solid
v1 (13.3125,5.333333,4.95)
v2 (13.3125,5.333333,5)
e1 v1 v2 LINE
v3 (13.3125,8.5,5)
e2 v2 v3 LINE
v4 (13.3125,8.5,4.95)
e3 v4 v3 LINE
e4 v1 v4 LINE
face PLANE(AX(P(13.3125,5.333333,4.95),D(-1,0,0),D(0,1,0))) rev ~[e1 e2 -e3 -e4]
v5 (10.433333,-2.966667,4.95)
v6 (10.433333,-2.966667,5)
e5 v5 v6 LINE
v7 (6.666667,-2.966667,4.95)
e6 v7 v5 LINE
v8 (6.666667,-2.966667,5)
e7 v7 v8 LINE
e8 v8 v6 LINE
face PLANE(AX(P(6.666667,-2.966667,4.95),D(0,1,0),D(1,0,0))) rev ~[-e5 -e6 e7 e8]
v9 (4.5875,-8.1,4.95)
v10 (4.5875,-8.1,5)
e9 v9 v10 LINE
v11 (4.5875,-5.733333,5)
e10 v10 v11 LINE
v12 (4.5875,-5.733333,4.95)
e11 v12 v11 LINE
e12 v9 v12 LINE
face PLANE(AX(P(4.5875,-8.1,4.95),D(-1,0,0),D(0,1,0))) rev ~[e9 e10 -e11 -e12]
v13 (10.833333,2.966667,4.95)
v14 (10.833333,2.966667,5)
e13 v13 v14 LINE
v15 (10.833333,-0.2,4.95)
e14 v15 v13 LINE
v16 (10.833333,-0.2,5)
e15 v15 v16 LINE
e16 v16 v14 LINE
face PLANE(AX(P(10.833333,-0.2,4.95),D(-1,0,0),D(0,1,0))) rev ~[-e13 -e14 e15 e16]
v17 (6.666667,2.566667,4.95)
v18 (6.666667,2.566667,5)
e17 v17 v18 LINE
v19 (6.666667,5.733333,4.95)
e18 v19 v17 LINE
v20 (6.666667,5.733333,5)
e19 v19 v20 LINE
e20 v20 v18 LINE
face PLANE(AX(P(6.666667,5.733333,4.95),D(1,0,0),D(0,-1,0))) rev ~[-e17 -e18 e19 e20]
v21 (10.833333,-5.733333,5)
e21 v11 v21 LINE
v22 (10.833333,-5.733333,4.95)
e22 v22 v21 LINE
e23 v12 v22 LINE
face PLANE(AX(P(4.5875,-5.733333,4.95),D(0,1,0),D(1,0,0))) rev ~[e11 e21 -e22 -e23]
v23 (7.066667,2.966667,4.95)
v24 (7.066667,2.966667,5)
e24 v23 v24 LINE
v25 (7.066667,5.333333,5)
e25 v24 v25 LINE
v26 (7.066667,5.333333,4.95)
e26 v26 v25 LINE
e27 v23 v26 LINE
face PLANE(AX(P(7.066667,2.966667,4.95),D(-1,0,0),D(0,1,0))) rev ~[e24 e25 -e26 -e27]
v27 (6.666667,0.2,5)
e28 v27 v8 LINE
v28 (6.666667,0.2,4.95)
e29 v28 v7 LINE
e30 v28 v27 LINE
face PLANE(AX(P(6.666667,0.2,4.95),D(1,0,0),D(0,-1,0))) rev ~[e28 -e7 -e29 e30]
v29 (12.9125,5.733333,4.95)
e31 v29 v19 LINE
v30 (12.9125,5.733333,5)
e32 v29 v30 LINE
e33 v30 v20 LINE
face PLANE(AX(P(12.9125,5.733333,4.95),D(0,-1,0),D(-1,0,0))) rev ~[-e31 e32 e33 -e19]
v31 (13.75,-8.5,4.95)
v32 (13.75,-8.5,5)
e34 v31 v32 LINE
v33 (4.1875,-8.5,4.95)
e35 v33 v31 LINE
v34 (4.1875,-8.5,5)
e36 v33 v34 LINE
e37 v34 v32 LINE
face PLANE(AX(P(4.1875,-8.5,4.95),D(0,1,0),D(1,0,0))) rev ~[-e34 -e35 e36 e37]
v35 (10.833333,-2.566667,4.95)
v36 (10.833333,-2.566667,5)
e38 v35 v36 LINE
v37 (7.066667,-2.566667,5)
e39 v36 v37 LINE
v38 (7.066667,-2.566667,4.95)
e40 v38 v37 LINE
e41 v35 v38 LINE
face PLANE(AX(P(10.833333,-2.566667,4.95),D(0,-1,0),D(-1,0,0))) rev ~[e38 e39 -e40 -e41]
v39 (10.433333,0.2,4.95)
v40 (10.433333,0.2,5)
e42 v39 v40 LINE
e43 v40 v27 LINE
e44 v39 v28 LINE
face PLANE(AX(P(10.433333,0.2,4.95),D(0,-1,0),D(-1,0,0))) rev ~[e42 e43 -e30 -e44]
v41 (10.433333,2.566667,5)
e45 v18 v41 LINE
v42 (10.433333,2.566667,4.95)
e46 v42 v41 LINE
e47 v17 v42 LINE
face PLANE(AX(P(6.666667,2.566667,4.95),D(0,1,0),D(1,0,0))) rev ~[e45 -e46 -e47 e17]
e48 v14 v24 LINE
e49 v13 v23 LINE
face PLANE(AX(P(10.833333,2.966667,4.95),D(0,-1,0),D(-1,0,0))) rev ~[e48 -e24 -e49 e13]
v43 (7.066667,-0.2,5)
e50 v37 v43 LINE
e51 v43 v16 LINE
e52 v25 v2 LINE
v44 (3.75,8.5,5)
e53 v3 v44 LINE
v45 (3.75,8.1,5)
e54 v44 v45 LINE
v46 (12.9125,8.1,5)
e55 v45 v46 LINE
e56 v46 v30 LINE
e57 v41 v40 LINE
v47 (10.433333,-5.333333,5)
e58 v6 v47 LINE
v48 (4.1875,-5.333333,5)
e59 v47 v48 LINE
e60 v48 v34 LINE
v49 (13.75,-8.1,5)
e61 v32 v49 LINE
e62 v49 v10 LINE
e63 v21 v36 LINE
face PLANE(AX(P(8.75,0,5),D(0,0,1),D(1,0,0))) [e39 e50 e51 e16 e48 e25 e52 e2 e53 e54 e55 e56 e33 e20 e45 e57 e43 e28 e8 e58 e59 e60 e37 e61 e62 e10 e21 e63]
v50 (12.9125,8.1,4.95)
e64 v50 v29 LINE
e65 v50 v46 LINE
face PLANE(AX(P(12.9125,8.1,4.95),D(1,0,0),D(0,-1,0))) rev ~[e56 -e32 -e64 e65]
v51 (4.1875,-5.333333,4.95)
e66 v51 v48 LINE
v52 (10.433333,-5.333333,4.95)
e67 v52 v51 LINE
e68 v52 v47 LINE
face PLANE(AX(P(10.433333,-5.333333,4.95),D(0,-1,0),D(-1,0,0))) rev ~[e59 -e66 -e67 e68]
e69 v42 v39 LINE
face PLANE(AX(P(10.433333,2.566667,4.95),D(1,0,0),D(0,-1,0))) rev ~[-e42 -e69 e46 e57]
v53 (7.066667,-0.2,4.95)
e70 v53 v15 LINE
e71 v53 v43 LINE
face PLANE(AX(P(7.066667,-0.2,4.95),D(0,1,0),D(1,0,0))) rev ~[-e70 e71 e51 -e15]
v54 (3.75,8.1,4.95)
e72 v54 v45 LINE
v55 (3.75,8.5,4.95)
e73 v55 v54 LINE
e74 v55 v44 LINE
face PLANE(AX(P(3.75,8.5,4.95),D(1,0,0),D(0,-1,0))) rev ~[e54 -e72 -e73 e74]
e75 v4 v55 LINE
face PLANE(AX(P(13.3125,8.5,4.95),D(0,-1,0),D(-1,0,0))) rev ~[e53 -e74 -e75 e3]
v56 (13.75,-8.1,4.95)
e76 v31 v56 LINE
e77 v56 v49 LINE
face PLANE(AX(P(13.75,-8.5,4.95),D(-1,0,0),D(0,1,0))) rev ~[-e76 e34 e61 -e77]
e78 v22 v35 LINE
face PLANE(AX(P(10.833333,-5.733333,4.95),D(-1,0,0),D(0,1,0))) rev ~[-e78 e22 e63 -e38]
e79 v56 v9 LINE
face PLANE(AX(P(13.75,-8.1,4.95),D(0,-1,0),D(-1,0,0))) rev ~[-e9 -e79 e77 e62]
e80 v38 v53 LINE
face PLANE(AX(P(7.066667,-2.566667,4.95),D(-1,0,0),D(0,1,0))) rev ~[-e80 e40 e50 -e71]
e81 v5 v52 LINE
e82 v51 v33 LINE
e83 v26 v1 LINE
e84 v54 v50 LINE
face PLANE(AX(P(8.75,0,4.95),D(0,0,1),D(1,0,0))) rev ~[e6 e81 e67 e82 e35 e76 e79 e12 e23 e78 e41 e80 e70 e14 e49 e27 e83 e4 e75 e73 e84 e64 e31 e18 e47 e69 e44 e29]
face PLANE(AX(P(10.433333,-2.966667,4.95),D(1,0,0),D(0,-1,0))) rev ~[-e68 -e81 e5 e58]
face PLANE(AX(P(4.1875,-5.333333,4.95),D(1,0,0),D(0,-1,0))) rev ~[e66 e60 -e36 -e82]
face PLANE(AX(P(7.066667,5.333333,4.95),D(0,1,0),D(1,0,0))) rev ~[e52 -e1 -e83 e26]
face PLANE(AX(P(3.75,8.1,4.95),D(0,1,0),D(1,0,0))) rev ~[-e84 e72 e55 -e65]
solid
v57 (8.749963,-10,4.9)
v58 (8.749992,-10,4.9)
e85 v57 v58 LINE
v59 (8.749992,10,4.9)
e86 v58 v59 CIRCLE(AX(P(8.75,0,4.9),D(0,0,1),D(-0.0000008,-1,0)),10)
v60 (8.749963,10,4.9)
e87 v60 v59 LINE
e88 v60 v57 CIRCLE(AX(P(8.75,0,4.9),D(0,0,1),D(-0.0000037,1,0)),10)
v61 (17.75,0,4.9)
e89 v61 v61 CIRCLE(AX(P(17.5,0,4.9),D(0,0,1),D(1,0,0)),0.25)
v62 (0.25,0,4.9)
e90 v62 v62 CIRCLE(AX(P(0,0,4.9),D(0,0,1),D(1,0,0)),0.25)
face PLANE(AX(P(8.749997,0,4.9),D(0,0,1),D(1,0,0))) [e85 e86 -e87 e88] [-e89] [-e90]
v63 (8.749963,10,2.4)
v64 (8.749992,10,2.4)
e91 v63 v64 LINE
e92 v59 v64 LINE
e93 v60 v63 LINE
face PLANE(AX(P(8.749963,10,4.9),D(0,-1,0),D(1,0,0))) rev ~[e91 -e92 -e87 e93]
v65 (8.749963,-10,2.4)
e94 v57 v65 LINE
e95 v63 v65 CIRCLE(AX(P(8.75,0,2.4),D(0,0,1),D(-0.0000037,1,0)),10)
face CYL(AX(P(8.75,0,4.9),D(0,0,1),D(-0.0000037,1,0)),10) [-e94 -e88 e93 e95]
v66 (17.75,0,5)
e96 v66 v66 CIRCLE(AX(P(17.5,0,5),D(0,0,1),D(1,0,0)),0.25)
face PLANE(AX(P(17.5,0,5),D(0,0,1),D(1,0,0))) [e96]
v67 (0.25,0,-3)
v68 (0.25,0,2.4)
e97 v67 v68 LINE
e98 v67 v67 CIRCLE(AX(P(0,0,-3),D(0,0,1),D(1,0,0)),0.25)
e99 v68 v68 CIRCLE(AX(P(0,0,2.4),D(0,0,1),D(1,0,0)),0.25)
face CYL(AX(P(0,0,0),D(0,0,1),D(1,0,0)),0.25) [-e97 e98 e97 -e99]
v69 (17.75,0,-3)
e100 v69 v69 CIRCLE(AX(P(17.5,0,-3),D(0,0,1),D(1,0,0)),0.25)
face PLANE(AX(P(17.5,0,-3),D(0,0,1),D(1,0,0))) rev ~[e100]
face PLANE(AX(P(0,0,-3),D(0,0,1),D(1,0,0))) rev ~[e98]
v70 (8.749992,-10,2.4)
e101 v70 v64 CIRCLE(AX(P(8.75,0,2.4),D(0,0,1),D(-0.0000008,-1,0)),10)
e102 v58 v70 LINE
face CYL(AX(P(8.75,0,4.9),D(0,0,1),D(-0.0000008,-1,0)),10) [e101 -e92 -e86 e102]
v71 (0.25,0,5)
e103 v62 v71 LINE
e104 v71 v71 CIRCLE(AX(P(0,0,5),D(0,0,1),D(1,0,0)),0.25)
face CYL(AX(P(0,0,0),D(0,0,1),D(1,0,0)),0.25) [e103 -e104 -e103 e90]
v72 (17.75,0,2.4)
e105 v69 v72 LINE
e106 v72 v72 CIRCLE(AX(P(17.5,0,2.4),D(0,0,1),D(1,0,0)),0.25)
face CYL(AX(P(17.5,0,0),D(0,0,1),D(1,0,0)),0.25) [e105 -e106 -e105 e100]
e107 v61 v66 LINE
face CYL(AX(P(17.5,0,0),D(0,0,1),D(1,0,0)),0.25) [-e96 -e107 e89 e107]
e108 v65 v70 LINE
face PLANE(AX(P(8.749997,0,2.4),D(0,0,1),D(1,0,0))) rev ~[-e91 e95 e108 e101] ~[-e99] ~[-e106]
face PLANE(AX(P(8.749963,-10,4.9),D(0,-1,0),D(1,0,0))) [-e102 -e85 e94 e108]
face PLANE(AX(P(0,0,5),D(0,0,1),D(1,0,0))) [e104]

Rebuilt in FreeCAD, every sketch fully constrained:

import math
import FreeCAD as App
import Part
import Sketcher

V = App.Vector
Q = App.Units.Quantity

doc = App.newDocument("Part")
body = doc.addObject("PartDesign::Body", "Body")

sketch1 = doc.addObject("Sketcher::SketchObject", "Sketch")
body.addObject(sketch1)
sketch1.AttachmentSupport = (doc.XY_Plane, [""])
sketch1.MapMode = "FlatFace"
sketch1.AttachmentOffset = App.Placement(V(0, 0, 4.9), App.Rotation())
sketch1.addGeometry([
    Part.ArcOfCircle(Part.Circle(V(8.75, 0, 0), V(0, 0, 1), 10), math.radians(90.000212), math.radians(269.999788)),
    Part.LineSegment(V(8.749963, -10, 0), V(8.749992, -10, 0)),
    Part.ArcOfCircle(Part.Circle(V(8.75, 0, 0), V(0, 0, 1), 10), math.radians(-90.000046), math.radians(90.000046)),
    Part.LineSegment(V(8.749992, 10, 0), V(8.749963, 10, 0)),
], False)
sketch1.addConstraint([
    Sketcher.Constraint("Coincident", 0, 2, 1, 1),
    Sketcher.Constraint("Tangent", 1, 2, 2, 1),
    Sketcher.Constraint("Tangent", 2, 2, 3, 1),
    Sketcher.Constraint("Coincident", 3, 2, 0, 1),
    Sketcher.Constraint("Symmetric", 1, 2, 2, 2, -1),
    Sketcher.Constraint("Vertical", 0, 2, 3, 2),
    Sketcher.Constraint("Radius", 0, Q("10 mm")),
    Sketcher.Constraint("DistanceX", -1, 1, 0, 3, Q("8.75 mm")),
    Sketcher.Constraint("DistanceX", -1, 1, 2, 3, Q("8.75 mm")),
    Sketcher.Constraint("DistanceX", -1, 1, 0, 2, Q("8.749963 mm")),
    Sketcher.Constraint("DistanceX", -1, 1, 1, 2, Q("8.749992 mm")),
])
pad1 = doc.addObject("PartDesign::Pad", "Pad")
body.addObject(pad1)
pad1.Profile = sketch1
pad1.Length = 2.5
pad1.Reversed = True
body2 = doc.addObject("PartDesign::Body", "Body001")
body2.AllowCompound = True

sketch2 = doc.addObject("Sketcher::SketchObject", "Sketch001")
body2.addObject(sketch2)
sketch2.AttachmentSupport = (doc.getObject("XY_Plane001"), [""])
sketch2.MapMode = "FlatFace"
sketch2.addGeometry([
    Part.Circle(V(0, 0, 0), V(0, 0, 1), 0.25),
    Part.Circle(V(17.5, 0, 0), V(0, 0, 1), 0.25),
], False)
sketch2.addConstraint([
    Sketcher.Constraint("Coincident", 0, 3, -1, 1),
    Sketcher.Constraint("Equal", 0, 1),
    Sketcher.Constraint("PointOnObject", 1, 3, -1),
    Sketcher.Constraint("Diameter", 0, Q("0.5 mm")),
    Sketcher.Constraint("DistanceX", -1, 1, 1, 3, Q("17.5 mm")),
])
pad2 = doc.addObject("PartDesign::Pad", "Pad001")
body2.addObject(pad2)
pad2.Profile = sketch2
pad2.Type = "TwoLengths"
pad2.Length = 5
pad2.Length2 = 3
body3 = doc.addObject("PartDesign::Body", "Body002")
body3.AllowCompound = True

sketch3 = doc.addObject("Sketcher::SketchObject", "Sketch002")
body3.addObject(sketch3)
sketch3.AttachmentSupport = (doc.getObject("XY_Plane002"), [""])
sketch3.MapMode = "FlatFace"
sketch3.AttachmentOffset = App.Placement(V(0, 0, 4.95), App.Rotation())
sketch3.addGeometry([
    Part.LineSegment(V(3.75, 8.1, 0), V(12.91, 8.1, 0)),
    Part.LineSegment(V(12.91, 8.1, 0), V(12.91, 5.73, 0)),
    Part.LineSegment(V(12.91, 5.73, 0), V(6.67, 5.73, 0)),
    Part.LineSegment(V(6.67, 5.73, 0), V(6.67, 2.57, 0)),
    Part.LineSegment(V(6.67, 2.57, 0), V(10.43, 2.57, 0)),
    Part.LineSegment(V(10.43, 2.57, 0), V(10.43, 0.2, 0)),
    Part.LineSegment(V(10.43, 0.2, 0), V(6.67, 0.2, 0)),
    Part.LineSegment(V(6.67, 0.2, 0), V(6.67, -2.97, 0)),
    Part.LineSegment(V(6.67, -2.97, 0), V(10.43, -2.97, 0)),
    Part.LineSegment(V(10.43, -2.97, 0), V(10.43, -5.33, 0)),
    Part.LineSegment(V(10.43, -5.33, 0), V(4.19, -5.33, 0)),
    Part.LineSegment(V(4.19, -5.33, 0), V(4.19, -8.5, 0)),
    Part.LineSegment(V(4.19, -8.5, 0), V(13.75, -8.5, 0)),
    Part.LineSegment(V(13.75, -8.5, 0), V(13.75, -8.1, 0)),
    Part.LineSegment(V(13.75, -8.1, 0), V(4.59, -8.1, 0)),
    Part.LineSegment(V(4.59, -8.1, 0), V(4.59, -5.73, 0)),
    Part.LineSegment(V(4.59, -5.73, 0), V(10.83, -5.73, 0)),
    Part.LineSegment(V(10.83, -5.73, 0), V(10.83, -2.57, 0)),
    Part.LineSegment(V(10.83, -2.57, 0), V(7.07, -2.57, 0)),
    Part.LineSegment(V(7.07, -2.57, 0), V(7.07, -0.2, 0)),
    Part.LineSegment(V(7.07, -0.2, 0), V(10.83, -0.2, 0)),
    Part.LineSegment(V(10.83, -0.2, 0), V(10.83, 2.97, 0)),
    Part.LineSegment(V(10.83, 2.97, 0), V(7.07, 2.97, 0)),
    Part.LineSegment(V(7.07, 2.97, 0), V(7.07, 5.33, 0)),
    Part.LineSegment(V(7.07, 5.33, 0), V(13.31, 5.33, 0)),
    Part.LineSegment(V(13.31, 5.33, 0), V(13.31, 8.5, 0)),
    Part.LineSegment(V(13.31, 8.5, 0), V(3.75, 8.5, 0)),
    Part.LineSegment(V(3.75, 8.5, 0), V(3.75, 8.1, 0)),
], False)
sketch3.addConstraint([
    Sketcher.Constraint("Coincident", 0, 2, 1, 1),
    Sketcher.Constraint("Coincident", 1, 2, 2, 1),
    Sketcher.Constraint("Coincident", 2, 2, 3, 1),
    Sketcher.Constraint("Coincident", 3, 2, 4, 1),
    Sketcher.Constraint("Coincident", 4, 2, 5, 1),
    Sketcher.Constraint("Coincident", 5, 2, 6, 1),
    Sketcher.Constraint("Coincident", 6, 2, 7, 1),
    Sketcher.Constraint("Coincident", 7, 2, 8, 1),
    Sketcher.Constraint("Coincident", 8, 2, 9, 1),
    Sketcher.Constraint("Coincident", 9, 2, 10, 1),
    Sketcher.Constraint("Coincident", 10, 2, 11, 1),
    Sketcher.Constraint("Coincident", 11, 2, 12, 1),
    Sketcher.Constraint("Coincident", 12, 2, 13, 1),
    Sketcher.Constraint("Coincident", 13, 2, 14, 1),
    Sketcher.Constraint("Coincident", 14, 2, 15, 1),
    Sketcher.Constraint("Coincident", 15, 2, 16, 1),
    Sketcher.Constraint("Coincident", 16, 2, 17, 1),
    Sketcher.Constraint("Coincident", 17, 2, 18, 1),
    Sketcher.Constraint("Coincident", 18, 2, 19, 1),
    Sketcher.Constraint("Coincident", 19, 2, 20, 1),
    Sketcher.Constraint("Coincident", 20, 2, 21, 1),
    Sketcher.Constraint("Coincident", 21, 2, 22, 1),
    Sketcher.Constraint("Coincident", 22, 2, 23, 1),
    Sketcher.Constraint("Coincident", 23, 2, 24, 1),
    Sketcher.Constraint("Coincident", 24, 2, 25, 1),
    Sketcher.Constraint("Coincident", 25, 2, 26, 1),
    Sketcher.Constraint("Coincident", 26, 2, 27, 1),
    Sketcher.Constraint("Coincident", 27, 2, 0, 1),
    Sketcher.Constraint("Horizontal", 0),
    Sketcher.Constraint("Vertical", 1),
    Sketcher.Constraint("Horizontal", 2),
    Sketcher.Constraint("Vertical", 3),
    Sketcher.Constraint("Horizontal", 4),
    Sketcher.Constraint("Vertical", 5),
    Sketcher.Constraint("Horizontal", 6),
    Sketcher.Constraint("Vertical", 7),
    Sketcher.Constraint("Horizontal", 8),
    Sketcher.Constraint("Vertical", 9),
    Sketcher.Constraint("Horizontal", 10),
    Sketcher.Constraint("Vertical", 11),
    Sketcher.Constraint("Horizontal", 12),
    Sketcher.Constraint("Vertical", 13),
    Sketcher.Constraint("Horizontal", 14),
    Sketcher.Constraint("Vertical", 15),
    Sketcher.Constraint("Horizontal", 16),
    Sketcher.Constraint("Vertical", 17),
    Sketcher.Constraint("Horizontal", 18),
    Sketcher.Constraint("Vertical", 19),
    Sketcher.Constraint("Horizontal", 20),
    Sketcher.Constraint("Vertical", 21),
    Sketcher.Constraint("Horizontal", 22),
    Sketcher.Constraint("Vertical", 23),
    Sketcher.Constraint("Horizontal", 24),
    Sketcher.Constraint("Vertical", 25),
    Sketcher.Constraint("Horizontal", 26),
    Sketcher.Constraint("Vertical", 27),
    Sketcher.Constraint("Vertical", 3, 2, 6, 2),
    Sketcher.Constraint("Vertical", 5, 2, 8, 2),
    Sketcher.Constraint("Vertical", 17, 2, 20, 2),
    Sketcher.Constraint("Vertical", 19, 2, 22, 2),
    Sketcher.Constraint("Equal", 2, 10),
    Sketcher.Constraint("Equal", 0, 14),
    Sketcher.Constraint("Equal", 10, 16),
    Sketcher.Constraint("Equal", 8, 18),
    Sketcher.Constraint("Equal", 16, 24),
    Sketcher.Constraint("Equal", 1, 5),
    Sketcher.Constraint("Equal", 3, 7),
    Sketcher.Constraint("Equal", 5, 9),
    Sketcher.Constraint("Equal", 7, 11),
    Sketcher.Constraint("Equal", 9, 15),
    Sketcher.Constraint("Equal", 11, 17),
    Sketcher.Constraint("Equal", 15, 19),
    Sketcher.Constraint("Equal", 17, 21),
    Sketcher.Constraint("Equal", 19, 23),
    Sketcher.Constraint("Equal", 21, 25),
    Sketcher.Constraint("DistanceY", 13, 1, 13, 2, Q("0.4 mm")),
    Sketcher.Constraint("DistanceY", -1, 1, 0, 2, Q("8.1 mm")),
    Sketcher.Constraint("DistanceY", -1, 1, 5, 2, Q("0.2 mm")),
    Sketcher.Constraint("DistanceY", 11, 2, -1, 1, Q("8.5 mm")),
    Sketcher.Constraint("DistanceX", 11, 2, 14, 2, Q("0.4 mm")),
    Sketcher.Constraint("DistanceX", -1, 1, 12, 2, Q("13.75 mm")),
    Sketcher.Constraint("DistanceX", -1, 1, 26, 2, Q("3.75 mm")),
    Sketcher.Constraint("DistanceX", 0, 1, 0, 2, Q("9.1625 mm")),
    Sketcher.Constraint("DistanceX", 2, 2, 2, 1, Q("6.245833 mm")),
])
pad3 = doc.addObject("PartDesign::Pad", "Pad002")
body3.addObject(pad3)
pad3.Profile = sketch3
pad3.Length = 0.05
doc.recompute()

boolean = doc.addObject("PartDesign::Boolean", "Boolean")
body3.addObject(boolean)
boolean.Type = "Fuse"
boolean.addObjects([body])
doc.recompute()

boolean2 = doc.addObject("PartDesign::Boolean", "Boolean001")
body3.addObject(boolean2)
boolean2.Type = "Fuse"
boolean2.addObjects([body2])

doc.recompute()
